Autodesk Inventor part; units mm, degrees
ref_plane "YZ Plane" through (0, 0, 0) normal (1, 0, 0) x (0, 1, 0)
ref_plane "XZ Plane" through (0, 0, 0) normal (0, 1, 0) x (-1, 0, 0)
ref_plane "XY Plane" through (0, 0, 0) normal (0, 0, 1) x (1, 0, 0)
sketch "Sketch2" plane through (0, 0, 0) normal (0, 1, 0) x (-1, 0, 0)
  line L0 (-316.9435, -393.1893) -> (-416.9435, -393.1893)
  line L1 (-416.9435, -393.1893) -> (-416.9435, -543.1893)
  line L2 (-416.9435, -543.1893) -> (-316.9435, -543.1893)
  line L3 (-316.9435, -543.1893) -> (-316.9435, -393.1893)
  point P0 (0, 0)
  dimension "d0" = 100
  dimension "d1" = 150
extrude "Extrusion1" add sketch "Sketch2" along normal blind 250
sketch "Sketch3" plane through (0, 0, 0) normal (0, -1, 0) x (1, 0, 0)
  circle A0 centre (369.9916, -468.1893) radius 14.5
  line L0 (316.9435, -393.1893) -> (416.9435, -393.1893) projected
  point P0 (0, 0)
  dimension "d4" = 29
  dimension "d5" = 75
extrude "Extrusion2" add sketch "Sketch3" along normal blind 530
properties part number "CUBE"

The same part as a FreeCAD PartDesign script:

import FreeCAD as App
import Part
import Sketcher

V = App.Vector

doc = App.newDocument("Part")
params = doc.addObject("Spreadsheet::Sheet", "Params")
for row, (alias, value) in enumerate([
    ("sketch1_width", "100 mm"),
    ("sketch1_height", "150 mm"),
    ("pad1_length", "250 mm"),
    ("sketch2_diameter", "29 mm"),
    ("pad2_length", "530 mm"),
], start=1):
    params.set(f"A{row}", alias)
    params.set(f"B{row}", "=" + value)
    params.setAlias(f"B{row}", alias)

body = doc.addObject("PartDesign::Body", "Body")

# Sketch on XZ plane
sketch1 = body.newObject("Sketcher::SketchObject", "Sketch")
sketch1.AttachmentSupport = (doc.getObject("XZ_Plane"), [""])
sketch1.MapMode = "FlatFace"
sketch1.addGeometry([
    Part.LineSegment(V(316.9435, -543.1893, 0), V(316.9435, -393.1893, 0)),
    Part.LineSegment(V(316.9435, -393.1893, 0), V(416.9435, -393.1893, 0)),
    Part.LineSegment(V(416.9435, -393.1893, 0), V(416.9435, -543.1893, 0)),
    Part.LineSegment(V(416.9435, -543.1893, 0), V(316.9435, -543.1893, 0)),
], False)
sketch1.addConstraint([
    Sketcher.Constraint("Coincident", 0, 2, 1, 1),
    Sketcher.Constraint("Coincident", 1, 2, 2, 1),
    Sketcher.Constraint("Coincident", 2, 2, 3, 1),
    Sketcher.Constraint("Coincident", 3, 2, 0, 1),
    Sketcher.Constraint("Vertical", 0),
    Sketcher.Constraint("Horizontal", 1),
    Sketcher.Constraint("Vertical", 2),
    Sketcher.Constraint("Horizontal", 3),
    Sketcher.Constraint("DistanceX", 1, 1, 1, 2, 100.0),
    Sketcher.Constraint("DistanceY", 0, 1, 0, 2, 150.0),
    Sketcher.Constraint("DistanceX", -1, 1, 0, 2, 316.9435),
    Sketcher.Constraint("DistanceY", 0, 2, -1, 1, 393.1893),
])
sketch1.setExpression("Constraints[8]", "Params.sketch1_width")
sketch1.setExpression("Constraints[9]", "Params.sketch1_height")
pad1 = body.newObject("PartDesign::Pad", "Pad")
pad1.Profile = sketch1
pad1.setExpression("Length", "Params.pad1_length")
pad1.Reversed = True

# Sketch on XZ plane
sketch2 = body.newObject("Sketcher::SketchObject", "Sketch001")
sketch2.AttachmentSupport = (doc.getObject("XZ_Plane"), [""])
sketch2.MapMode = "FlatFace"
sketch2.addGeometry(Part.Circle(V(369.9916, -468.1893, 0), V(0, 0, 1), 14.5), False)
sketch2.addConstraint([
    Sketcher.Constraint("Diameter", 0, 29.0),
    Sketcher.Constraint("DistanceX", -1, 1, 0, 3, 369.9916),
    Sketcher.Constraint("DistanceY", 0, 3, -1, 1, 468.1893),
])
sketch2.setExpression("Constraints[0]", "Params.sketch2_diameter")
pad2 = body.newObject("PartDesign::Pad", "Pad001")
pad2.Profile = sketch2
pad2.setExpression("Length", "Params.pad2_length")

doc.recompute()
